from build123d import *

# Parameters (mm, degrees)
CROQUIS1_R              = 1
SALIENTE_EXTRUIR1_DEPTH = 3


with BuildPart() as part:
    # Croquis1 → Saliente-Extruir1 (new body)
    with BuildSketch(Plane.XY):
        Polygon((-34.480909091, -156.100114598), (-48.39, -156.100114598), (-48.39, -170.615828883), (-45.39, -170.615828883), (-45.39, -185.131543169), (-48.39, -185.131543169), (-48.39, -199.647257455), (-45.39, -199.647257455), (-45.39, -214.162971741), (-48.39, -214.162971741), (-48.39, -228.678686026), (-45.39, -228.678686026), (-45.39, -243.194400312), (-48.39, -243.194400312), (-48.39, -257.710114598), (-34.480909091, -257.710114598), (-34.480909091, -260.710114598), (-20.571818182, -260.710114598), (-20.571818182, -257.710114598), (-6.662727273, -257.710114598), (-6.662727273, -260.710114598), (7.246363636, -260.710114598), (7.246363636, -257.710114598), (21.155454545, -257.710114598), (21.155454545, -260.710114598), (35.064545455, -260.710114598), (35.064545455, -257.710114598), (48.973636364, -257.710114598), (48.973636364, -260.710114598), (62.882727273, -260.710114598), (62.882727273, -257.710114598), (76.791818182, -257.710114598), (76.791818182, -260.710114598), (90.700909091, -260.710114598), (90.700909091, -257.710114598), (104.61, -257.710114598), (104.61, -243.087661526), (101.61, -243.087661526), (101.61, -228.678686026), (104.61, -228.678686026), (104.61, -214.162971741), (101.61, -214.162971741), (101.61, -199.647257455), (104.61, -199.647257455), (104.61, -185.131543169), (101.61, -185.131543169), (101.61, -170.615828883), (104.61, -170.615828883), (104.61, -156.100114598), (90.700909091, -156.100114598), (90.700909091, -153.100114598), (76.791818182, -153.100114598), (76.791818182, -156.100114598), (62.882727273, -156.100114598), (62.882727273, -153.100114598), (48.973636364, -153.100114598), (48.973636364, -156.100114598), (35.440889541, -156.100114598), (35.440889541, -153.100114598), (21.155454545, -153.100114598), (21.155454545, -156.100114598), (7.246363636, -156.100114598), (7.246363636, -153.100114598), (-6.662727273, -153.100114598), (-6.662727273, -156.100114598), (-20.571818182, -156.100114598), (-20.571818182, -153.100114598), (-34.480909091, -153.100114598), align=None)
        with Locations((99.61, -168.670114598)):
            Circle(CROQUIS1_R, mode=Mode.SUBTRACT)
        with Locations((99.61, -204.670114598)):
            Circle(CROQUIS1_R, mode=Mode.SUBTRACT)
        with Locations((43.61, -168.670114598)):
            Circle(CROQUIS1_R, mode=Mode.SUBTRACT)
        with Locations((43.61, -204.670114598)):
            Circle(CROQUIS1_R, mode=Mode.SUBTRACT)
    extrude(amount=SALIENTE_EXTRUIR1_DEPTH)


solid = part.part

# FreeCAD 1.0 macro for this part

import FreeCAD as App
import Part
import Sketcher

V = App.Vector
Q = App.Units.Quantity

doc = App.newDocument("Part")
body = doc.addObject("PartDesign::Body", "Body")

sketch1 = body.newObject("Sketcher::SketchObject", "Sketch")
sketch1.AttachmentSupport = (doc.getObject("XY_Plane"), [""])
sketch1.MapMode = "FlatFace"
sketch1.addGeometry(Part.LineSegment(V(-34.5, -156.1, 0), V(-48.4, -156.1, 0)), False)
sketch1.addGeometry(Part.LineSegment(V(-48.4, -156.1, 0), V(-48.4, -170.6, 0)), False)
sketch1.addGeometry(Part.LineSegment(V(-48.4, -170.6, 0), V(-45.4, -170.6, 0)), False)
sketch1.addGeometry(Part.LineSegment(V(-45.4, -170.6, 0), V(-45.4, -185.1, 0)), False)
sketch1.addGeometry(Part.LineSegment(V(-45.4, -185.1, 0), V(-48.4, -185.1, 0)), False)
sketch1.addGeometry(Part.LineSegment(V(-48.4, -185.1, 0), V(-48.4, -199.6, 0)), False)
sketch1.addGeometry(Part.LineSegment(V(-48.4, -199.6, 0), V(-45.4, -199.6, 0)), False)
sketch1.addGeometry(Part.LineSegment(V(-45.4, -199.6, 0), V(-45.4, -214.2, 0)), False)
sketch1.addGeometry(Part.LineSegment(V(-45.4, -214.2, 0), V(-48.4, -214.2, 0)), False)
sketch1.addGeometry(Part.LineSegment(V(-48.4, -214.2, 0), V(-48.4, -228.7, 0)), False)
sketch1.addGeometry(Part.LineSegment(V(-48.4, -228.7, 0), V(-45.4, -228.7, 0)), False)
sketch1.addGeometry(Part.LineSegment(V(-45.4, -228.7, 0), V(-45.4, -243.2, 0)), False)
sketch1.addGeometry(Part.LineSegment(V(-45.4, -243.2, 0), V(-48.4, -243.2, 0)), False)
sketch1.addGeometry(Part.LineSegment(V(-48.4, -243.2, 0), V(-48.4, -257.7, 0)), False)
sketch1.addGeometry(Part.LineSegment(V(-48.4, -257.7, 0), V(-34.5, -257.7, 0)), False)
sketch1.addGeometry(Part.LineSegment(V(-34.5, -257.7, 0), V(-34.5, -260.7, 0)), False)
sketch1.addGeometry(Part.LineSegment(V(-34.5, -260.7, 0), V(-20.6, -260.7, 0)), False)
sketch1.addGeometry(Part.LineSegment(V(-20.6, -260.7, 0), V(-20.6, -257.7, 0)), False)
sketch1.addGeometry(Part.LineSegment(V(-20.6, -257.7, 0), V(-6.7, -257.7, 0)), False)
sketch1.addGeometry(Part.LineSegment(V(-6.7, -257.7, 0), V(-6.7, -260.7, 0)), False)
sketch1.addGeometry(Part.LineSegment(V(-6.7, -260.7, 0), V(7.2, -260.7, 0)), False)
sketch1.addGeometry(Part.LineSegment(V(7.2, -260.7, 0), V(7.2, -257.7, 0)), False)
sketch1.addGeometry(Part.LineSegment(V(7.2, -257.7, 0), V(21.2, -257.7, 0)), False)
sketch1.addGeometry(Part.LineSegment(V(21.2, -257.7, 0), V(21.2, -260.7, 0)), False)
sketch1.addGeometry(Part.LineSegment(V(21.2, -260.7, 0), V(35.1, -260.7, 0)), False)
sketch1.addGeometry(Part.LineSegment(V(35.1, -260.7, 0), V(35.1, -257.7, 0)), False)
sketch1.addGeometry(Part.LineSegment(V(35.1, -257.7, 0), V(49, -257.7, 0)), False)
sketch1.addGeometry(Part.LineSegment(V(49, -257.7, 0), V(49, -260.7, 0)), False)
sketch1.addGeometry(Part.LineSegment(V(49, -260.7, 0), V(62.9, -260.7, 0)), False)
sketch1.addGeometry(Part.LineSegment(V(62.9, -260.7, 0), V(62.9, -257.7, 0)), False)
sketch1.addGeometry(Part.LineSegment(V(62.9, -257.7, 0), V(76.8, -257.7, 0)), False)
sketch1.addGeometry(Part.LineSegment(V(76.8, -257.7, 0), V(76.8, -260.7, 0)), False)
sketch1.addGeometry(Part.LineSegment(V(76.8, -260.7, 0), V(90.7, -260.7, 0)), False)
sketch1.addGeometry(Part.LineSegment(V(90.7, -260.7, 0), V(90.7, -257.7, 0)), False)
sketch1.addGeometry(Part.LineSegment(V(90.7, -257.7, 0), V(104.6, -257.7, 0)), False)
sketch1.addGeometry(Part.LineSegment(V(104.6, -257.7, 0), V(104.6, -243.1, 0)), False)
sketch1.addGeometry(Part.LineSegment(V(104.6, -243.1, 0), V(101.6, -243.1, 0)), False)
sketch1.addGeometry(Part.LineSegment(V(101.6, -243.1, 0), V(101.6, -228.7, 0)), False)
sketch1.addGeometry(Part.LineSegment(V(101.6, -228.7, 0), V(104.6, -228.7, 0)), False)
sketch1.addGeometry(Part.LineSegment(V(104.6, -228.7, 0), V(104.6, -214.2, 0)), False)
sketch1.addGeometry(Part.LineSegment(V(104.6, -214.2, 0), V(101.6, -214.2, 0)), False)
sketch1.addGeometry(Part.LineSegment(V(101.6, -214.2, 0), V(101.6, -199.6, 0)), False)
sketch1.addGeometry(Part.LineSegment(V(101.6, -199.6, 0), V(104.6, -199.6, 0)), False)
sketch1.addGeometry(Part.LineSegment(V(104.6, -199.6, 0), V(104.6, -185.1, 0)), False)
sketch1.addGeometry(Part.LineSegment(V(104.6, -185.1, 0), V(101.6, -185.1, 0)), False)
sketch1.addGeometry(Part.LineSegment(V(101.6, -185.1, 0), V(101.6, -170.6, 0)), False)
sketch1.addGeometry(Part.LineSegment(V(101.6, -170.6, 0), V(104.6, -170.6, 0)), False)
sketch1.addGeometry(Part.LineSegment(V(104.6, -170.6, 0), V(104.6, -156.1, 0)), False)
sketch1.addGeometry(Part.LineSegment(V(104.6, -156.1, 0), V(90.7, -156.1, 0)), False)
sketch1.addGeometry(Part.LineSegment(V(90.7, -156.1, 0), V(90.7, -153.1, 0)), False)
sketch1.addGeometry(Part.LineSegment(V(90.7, -153.1, 0), V(76.8, -153.1, 0)), False)
sketch1.addGeometry(Part.LineSegment(V(76.8, -153.1, 0), V(76.8, -156.1, 0)), False)
sketch1.addGeometry(Part.LineSegment(V(76.8, -156.1, 0), V(62.9, -156.1, 0)), False)
sketch1.addGeometry(Part.LineSegment(V(62.9, -156.1, 0), V(62.9, -153.1, 0)), False)
sketch1.addGeometry(Part.LineSegment(V(62.9, -153.1, 0), V(49, -153.1, 0)), False)
sketch1.addGeometry(Part.LineSegment(V(49, -153.1, 0), V(49, -156.1, 0)), False)
sketch1.addGeometry(Part.LineSegment(V(49, -156.1, 0), V(35.4, -156.1, 0)), False)
sketch1.addGeometry(Part.LineSegment(V(35.4, -156.1, 0), V(35.4, -153.1, 0)), False)
sketch1.addGeometry(Part.LineSegment(V(35.4, -153.1, 0), V(21.2, -153.1, 0)), False)
sketch1.addGeometry(Part.LineSegment(V(21.2, -153.1, 0), V(21.2, -156.1, 0)), False)
sketch1.addGeometry(Part.LineSegment(V(21.2, -156.1, 0), V(7.2, -156.1, 0)), False)
sketch1.addGeometry(Part.LineSegment(V(7.2, -156.1, 0), V(7.2, -153.1, 0)), False)
sketch1.addGeometry(Part.LineSegment(V(7.2, -153.1, 0), V(-6.7, -153.1, 0)), False)
sketch1.addGeometry(Part.LineSegment(V(-6.7, -153.1, 0), V(-6.7, -156.1, 0)), False)
sketch1.addGeometry(Part.LineSegment(V(-6.7, -156.1, 0), V(-20.6, -156.1, 0)), False)
sketch1.addGeometry(Part.LineSegment(V(-20.6, -156.1, 0), V(-20.6, -153.1, 0)), False)
sketch1.addGeometry(Part.LineSegment(V(-20.6, -153.1, 0), V(-34.5, -153.1, 0)), False)
sketch1.addGeometry(Part.LineSegment(V(-34.5, -153.1, 0), V(-34.5, -156.1, 0)), False)
sketch1.addGeometry(Part.Circle(V(43.6, -204.7, 0), V(0, 0, 1), 1), False)
sketch1.addGeometry(Part.Circle(V(99.6, -204.7, 0), V(0, 0, 1), 1), False)
sketch1.addGeometry(Part.Circle(V(43.6, -168.7, 0), V(0, 0, 1), 1), False)
sketch1.addGeometry(Part.Circle(V(99.6, -168.7, 0), V(0, 0, 1), 1), False)
sketch1.addConstraint(Sketcher.Constraint("Coincident", 0, 2, 1, 1))
sketch1.addConstraint(Sketcher.Constraint("Coincident", 1, 2, 2, 1))
sketch1.addConstraint(Sketcher.Constraint("Coincident", 2, 2, 3, 1))
sketch1.addConstraint(Sketcher.Constraint("Coincident", 3, 2, 4, 1))
sketch1.addConstraint(Sketcher.Constraint("Coincident", 4, 2, 5, 1))
sketch1.addConstraint(Sketcher.Constraint("Coincident", 5, 2, 6, 1))
sketch1.addConstraint(Sketcher.Constraint("Coincident", 6, 2, 7, 1))
sketch1.addConstraint(Sketcher.Constraint("Coincident", 7, 2, 8, 1))
sketch1.addConstraint(Sketcher.Constraint("Coincident", 8, 2, 9, 1))
sketch1.addConstraint(Sketcher.Constraint("Coincident", 9, 2, 10, 1))
sketch1.addConstraint(Sketcher.Constraint("Coincident", 10, 2, 11, 1))
sketch1.addConstraint(Sketcher.Constraint("Coincident", 11, 2, 12, 1))
sketch1.addConstraint(Sketcher.Constraint("Coincident", 12, 2, 13, 1))
sketch1.addConstraint(Sketcher.Constraint("Coincident", 13, 2, 14, 1))
sketch1.addConstraint(Sketcher.Constraint("Coincident", 14, 2, 15, 1))
sketch1.addConstraint(Sketcher.Constraint("Coincident", 15, 2, 16, 1))
sketch1.addConstraint(Sketcher.Constraint("Coincident", 16, 2, 17, 1))
sketch1.addConstraint(Sketcher.Constraint("Coincident", 17, 2, 18, 1))
sketch1.addConstraint(Sketcher.Constraint("Coincident", 18, 2, 19, 1))
sketch1.addConstraint(Sketcher.Constraint("Coincident", 19, 2, 20, 1))
sketch1.addConstraint(Sketcher.Constraint("Coincident", 20, 2, 21, 1))
sketch1.addConstraint(Sketcher.Constraint("Coincident", 21, 2, 22, 1))
sketch1.addConstraint(Sketcher.Constraint("Coincident", 22, 2, 23, 1))
sketch1.addConstraint(Sketcher.Constraint("Coincident", 23, 2, 24, 1))
sketch1.addConstraint(Sketcher.Constraint("Coincident", 24, 2, 25, 1))
sketch1.addConstraint(Sketcher.Constraint("Coincident", 25, 2, 26, 1))
sketch1.addConstraint(Sketcher.Constraint("Coincident", 26, 2, 27, 1))
sketch1.addConstraint(Sketcher.Constraint("Coincident", 27, 2, 28, 1))
sketch1.addConstraint(Sketcher.Constraint("Coincident", 28, 2, 29, 1))
sketch1.addConstraint(Sketcher.Constraint("Coincident", 29, 2, 30, 1))
sketch1.addConstraint(Sketcher.Constraint("Coincident", 30, 2, 31, 1))
sketch1.addConstraint(Sketcher.Constraint("Coincident", 31, 2, 32, 1))
sketch1.addConstraint(Sketcher.Constraint("Coincident", 32, 2, 33, 1))
sketch1.addConstraint(Sketcher.Constraint("Coincident", 33, 2, 34, 1))
sketch1.addConstraint(Sketcher.Constraint("Coincident", 34, 2, 35, 1))
sketch1.addConstraint(Sketcher.Constraint("Coincident", 35, 2, 36, 1))
sketch1.addConstraint(Sketcher.Constraint("Coincident", 36, 2, 37, 1))
sketch1.addConstraint(Sketcher.Constraint("Coincident", 37, 2, 38, 1))
sketch1.addConstraint(Sketcher.Constraint("Coincident", 38, 2, 39, 1))
sketch1.addConstraint(Sketcher.Constraint("Coincident", 39, 2, 40, 1))
sketch1.addConstraint(Sketcher.Constraint("Coincident", 40, 2, 41, 1))
sketch1.addConstraint(Sketcher.Constraint("Coincident", 41, 2, 42, 1))
sketch1.addConstraint(Sketcher.Constraint("Coincident", 42, 2, 43, 1))
sketch1.addConstraint(Sketcher.Constraint("Coincident", 43, 2, 44, 1))
sketch1.addConstraint(Sketcher.Constraint("Coincident", 44, 2, 45, 1))
sketch1.addConstraint(Sketcher.Constraint("Coincident", 45, 2, 46, 1))
sketch1.addConstraint(Sketcher.Constraint("Coincident", 46, 2, 47, 1))
sketch1.addConstraint(Sketcher.Constraint("Coincident", 47, 2, 48, 1))
sketch1.addConstraint(Sketcher.Constraint("Coincident", 48, 2, 49, 1))
sketch1.addConstraint(Sketcher.Constraint("Coincident", 49, 2, 50, 1))
sketch1.addConstraint(Sketcher.Constraint("Coincident", 50, 2, 51, 1))
sketch1.addConstraint(Sketcher.Constraint("Coincident", 51, 2, 52, 1))
sketch1.addConstraint(Sketcher.Constraint("Coincident", 52, 2, 53, 1))
sketch1.addConstraint(Sketcher.Constraint("Coincident", 53, 2, 54, 1))
sketch1.addConstraint(Sketcher.Constraint("Coincident", 54, 2, 55, 1))
sketch1.addConstraint(Sketcher.Constraint("Coincident", 55, 2, 56, 1))
sketch1.addConstraint(Sketcher.Constraint("Coincident", 56, 2, 57, 1))
sketch1.addConstraint(Sketcher.Constraint("Coincident", 57, 2, 58, 1))
sketch1.addConstraint(Sketcher.Constraint("Coincident", 58, 2, 59, 1))
sketch1.addConstraint(Sketcher.Constraint("Coincident", 59, 2, 60, 1))
sketch1.addConstraint(Sketcher.Constraint("Coincident", 60, 2, 61, 1))
sketch1.addConstraint(Sketcher.Constraint("Coincident", 61, 2, 62, 1))
sketch1.addConstraint(Sketcher.Constraint("Coincident", 62, 2, 63, 1))
sketch1.addConstraint(Sketcher.Constraint("Coincident", 63, 2, 64, 1))
sketch1.addConstraint(Sketcher.Constraint("Coincident", 64, 2, 65, 1))
sketch1.addConstraint(Sketcher.Constraint("Coincident", 65, 2, 66, 1))
sketch1.addConstraint(Sketcher.Constraint("Coincident", 66, 2, 67, 1))
sketch1.addConstraint(Sketcher.Constraint("Coincident", 67, 2, 0, 1))
sketch1.addConstraint(Sketcher.Constraint("Horizontal", 0))
sketch1.addConstraint(Sketcher.Constraint("Vertical", 1))
sketch1.addConstraint(Sketcher.Constraint("Horizontal", 2))
sketch1.addConstraint(Sketcher.Constraint("Vertical", 3))
sketch1.addConstraint(Sketcher.Constraint("Horizontal", 4))
sketch1.addConstraint(Sketcher.Constraint("Vertical", 5))
sketch1.addConstraint(Sketcher.Constraint("Horizontal", 6))
sketch1.addConstraint(Sketcher.Constraint("Vertical", 7))
sketch1.addConstraint(Sketcher.Constraint("Horizontal", 8))
sketch1.addConstraint(Sketcher.Constraint("Vertical", 9))
sketch1.addConstraint(Sketcher.Constraint("Horizontal", 10))
sketch1.addConstraint(Sketcher.Constraint("Vertical", 11))
sketch1.addConstraint(Sketcher.Constraint("Horizontal", 12))
sketch1.addConstraint(Sketcher.Constraint("Vertical", 13))
sketch1.addConstraint(Sketcher.Constraint("Horizontal", 14))
sketch1.addConstraint(Sketcher.Constraint("Vertical", 15))
sketch1.addConstraint(Sketcher.Constraint("Horizontal", 16))
sketch1.addConstraint(Sketcher.Constraint("Vertical", 17))
sketch1.addConstraint(Sketcher.Constraint("Horizontal", 18))
sketch1.addConstraint(Sketcher.Constraint("Vertical", 19))
sketch1.addConstraint(Sketcher.Constraint("Horizontal", 20))
sketch1.addConstraint(Sketcher.Constraint("Vertical", 21))
sketch1.addConstraint(Sketcher.Constraint("Horizontal", 22))
sketch1.addConstraint(Sketcher.Constraint("Vertical", 23))
sketch1.addConstraint(Sketcher.Constraint("Horizontal", 24))
sketch1.addConstraint(Sketcher.Constraint("Vertical", 25))
sketch1.addConstraint(Sketcher.Constraint("Horizontal", 26))
sketch1.addConstraint(Sketcher.Constraint("Vertical", 27))
sketch1.addConstraint(Sketcher.Constraint("Horizontal", 28))
sketch1.addConstraint(Sketcher.Constraint("Vertical", 29))
sketch1.addConstraint(Sketcher.Constraint("Horizontal", 30))
sketch1.addConstraint(Sketcher.Constraint("Vertical", 31))
sketch1.addConstraint(Sketcher.Constraint("Horizontal", 32))
sketch1.addConstraint(Sketcher.Constraint("Vertical", 33))
sketch1.addConstraint(Sketcher.Constraint("Horizontal", 34))
sketch1.addConstraint(Sketcher.Constraint("Vertical", 35))
sketch1.addConstraint(Sketcher.Constraint("Horizontal", 36))
sketch1.addConstraint(Sketcher.Constraint("Vertical", 37))
sketch1.addConstraint(Sketcher.Constraint("Horizontal", 38))
sketch1.addConstraint(Sketcher.Constraint("Vertical", 39))
sketch1.addConstraint(Sketcher.Constraint("Horizontal", 40))
sketch1.addConstraint(Sketcher.Constraint("Vertical", 41))
sketch1.addConstraint(Sketcher.Constraint("Horizontal", 42))
sketch1.addConstraint(Sketcher.Constraint("Vertical", 43))
sketch1.addConstraint(Sketcher.Constraint("Horizontal", 44))
sketch1.addConstraint(Sketcher.Constraint("Vertical", 45))
sketch1.addConstraint(Sketcher.Constraint("Horizontal", 46))
sketch1.addConstraint(Sketcher.Constraint("Vertical", 47))
sketch1.addConstraint(Sketcher.Constraint("Horizontal", 48))
sketch1.addConstraint(Sketcher.Constraint("Vertical", 49))
sketch1.addConstraint(Sketcher.Constraint("Horizontal", 50))
sketch1.addConstraint(Sketcher.Constraint("Vertical", 51))
sketch1.addConstraint(Sketcher.Constraint("Horizontal", 52))
sketch1.addConstraint(Sketcher.Constraint("Vertical", 53))
sketch1.addConstraint(Sketcher.Constraint("Horizontal", 54))
sketch1.addConstraint(Sketcher.Constraint("Vertical", 55))
sketch1.addConstraint(Sketcher.Constraint("Horizontal", 56))
sketch1.addConstraint(Sketcher.Constraint("Vertical", 57))
sketch1.addConstraint(Sketcher.Constraint("Horizontal", 58))
sketch1.addConstraint(Sketcher.Constraint("Vertical", 59))
sketch1.addConstraint(Sketcher.Constraint("Horizontal", 60))
sketch1.addConstraint(Sketcher.Constraint("Vertical", 61))
sketch1.addConstraint(Sketcher.Constraint("Horizontal", 62))
sketch1.addConstraint(Sketcher.Constraint("Vertical", 63))
sketch1.addConstraint(Sketcher.Constraint("Horizontal", 64))
sketch1.addConstraint(Sketcher.Constraint("Vertical", 65))
sketch1.addConstraint(Sketcher.Constraint("Horizontal", 66))
sketch1.addConstraint(Sketcher.Constraint("Vertical", 67))
sketch1.addConstraint(Sketcher.Constraint("Equal", 68, 69))
sketch1.addConstraint(Sketcher.Constraint("Equal", 69, 70))
sketch1.addConstraint(Sketcher.Constraint("Equal", 70, 71))
sketch1.addConstraint(Sketcher.Constraint("Horizontal", 68, 3, 69, 3))
sketch1.addConstraint(Sketcher.Constraint("Horizontal", 70, 3, 71, 3))
sketch1.addConstraint(Sketcher.Constraint("Horizontal", 14, 2, 17, 2))
sketch1.addConstraint(Sketcher.Constraint("Horizontal", 16, 2, 19, 2))
sketch1.addConstraint(Sketcher.Constraint("Horizontal", 18, 2, 21, 2))
sketch1.addConstraint(Sketcher.Constraint("Horizontal", 20, 2, 23, 2))
sketch1.addConstraint(Sketcher.Constraint("Horizontal", 22, 2, 25, 2))
sketch1.addConstraint(Sketcher.Constraint("Horizontal", 24, 2, 27, 2))
sketch1.addConstraint(Sketcher.Constraint("Horizontal", 26, 2, 29, 2))
sketch1.addConstraint(Sketcher.Constraint("Horizontal", 28, 2, 31, 2))
sketch1.addConstraint(Sketcher.Constraint("Horizontal", 30, 2, 33, 2))
sketch1.addConstraint(Sketcher.Constraint("Horizontal", 10, 2, 37, 2))
sketch1.addConstraint(Sketcher.Constraint("Horizontal", 8, 2, 39, 2))
sketch1.addConstraint(Sketcher.Constraint("Horizontal", 6, 2, 41, 2))
sketch1.addConstraint(Sketcher.Constraint("Horizontal", 4, 2, 43, 2))
sketch1.addConstraint(Sketcher.Constraint("Horizontal", 2, 2, 45, 2))
sketch1.addConstraint(Sketcher.Constraint("Horizontal", 0, 2, 47, 2))
sketch1.addConstraint(Sketcher.Constraint("Horizontal", 48, 2, 51, 2))
sketch1.addConstraint(Sketcher.Constraint("Horizontal", 50, 2, 53, 2))
sketch1.addConstraint(Sketcher.Constraint("Horizontal", 52, 2, 55, 2))
sketch1.addConstraint(Sketcher.Constraint("Horizontal", 54, 2, 57, 2))
sketch1.addConstraint(Sketcher.Constraint("Horizontal", 56, 2, 59, 2))
sketch1.addConstraint(Sketcher.Constraint("Horizontal", 58, 2, 61, 2))
sketch1.addConstraint(Sketcher.Constraint("Horizontal", 60, 2, 63, 2))
sketch1.addConstraint(Sketcher.Constraint("Horizontal", 62, 2, 65, 2))
sketch1.addConstraint(Sketcher.Constraint("Vertical", 68, 3, 70, 3))
sketch1.addConstraint(Sketcher.Constraint("Vertical", 69, 3, 71, 3))
sketch1.addConstraint(Sketcher.Constraint("Vertical", 1, 2, 4, 2))
sketch1.addConstraint(Sketcher.Constraint("Vertical", 3, 2, 6, 2))
sketch1.addConstraint(Sketcher.Constraint("Vertical", 5, 2, 8, 2))
sketch1.addConstraint(Sketcher.Constraint("Vertical", 7, 2, 10, 2))
sketch1.addConstraint(Sketcher.Constraint("Vertical", 9, 2, 12, 2))
sketch1.addConstraint(Sketcher.Constraint("Vertical", 35, 2, 38, 2))
sketch1.addConstraint(Sketcher.Constraint("Vertical", 37, 2, 40, 2))
sketch1.addConstraint(Sketcher.Constraint("Vertical", 39, 2, 42, 2))
sketch1.addConstraint(Sketcher.Constraint("Vertical", 41, 2, 44, 2))
sketch1.addConstraint(Sketcher.Constraint("Vertical", 43, 2, 46, 2))
sketch1.addConstraint(Sketcher.Constraint("Vertical", 33, 2, 48, 2))
sketch1.addConstraint(Sketcher.Constraint("Vertical", 31, 2, 50, 2))
sketch1.addConstraint(Sketcher.Constraint("Vertical", 29, 2, 52, 2))
sketch1.addConstraint(Sketcher.Constraint("Vertical", 27, 2, 54, 2))
sketch1.addConstraint(Sketcher.Constraint("Vertical", 23, 2, 58, 2))
sketch1.addConstraint(Sketcher.Constraint("Vertical", 21, 2, 60, 2))
sketch1.addConstraint(Sketcher.Constraint("Vertical", 19, 2, 62, 2))
sketch1.addConstraint(Sketcher.Constraint("Vertical", 17, 2, 64, 2))
sketch1.addConstraint(Sketcher.Constraint("Vertical", 15, 2, 66, 2))
sketch1.addConstraint(Sketcher.Constraint("Equal", 14, 16))
sketch1.addConstraint(Sketcher.Constraint("Equal", 16, 18))
sketch1.addConstraint(Sketcher.Constraint("Equal", 18, 20))
sketch1.addConstraint(Sketcher.Constraint("Equal", 20, 22))
sketch1.addConstraint(Sketcher.Constraint("Equal", 22, 24))
sketch1.addConstraint(Sketcher.Constraint("Equal", 24, 26))
sketch1.addConstraint(Sketcher.Constraint("Equal", 26, 28))
sketch1.addConstraint(Sketcher.Constraint("Equal", 28, 30))
sketch1.addConstraint(Sketcher.Constraint("Equal", 30, 32))
sketch1.addConstraint(Sketcher.Constraint("Equal", 32, 34))
sketch1.addConstraint(Sketcher.Constraint("Equal", 12, 36))
sketch1.addConstraint(Sketcher.Constraint("Equal", 1, 3))
sketch1.addConstraint(Sketcher.Constraint("Equal", 3, 5))
sketch1.addConstraint(Sketcher.Constraint("Equal", 5, 7))
sketch1.addConstraint(Sketcher.Constraint("Equal", 7, 9))
sketch1.addConstraint(Sketcher.Constraint("Equal", 9, 11))
sketch1.addConstraint(Sketcher.Constraint("Equal", 11, 13))
sketch1.addConstraint(Sketcher.Constraint("Equal", 46, 15))
sketch1.addConstraint(Sketcher.Constraint("Equal", 33, 49))
sketch1.addConstraint(Sketcher.Constraint("Diameter", 68, Q("2 mm")))
sketch1.addConstraint(Sketcher.Constraint("DistanceX", 2, 1, 2, 2, Q("3 mm")))
sketch1.addConstraint(Sketcher.Constraint("DistanceX", -1, 1, 68, 3, Q("43.61 mm")))
sketch1.addConstraint(Sketcher.Constraint("DistanceX", -1, 1, 69, 3, Q("99.61 mm")))
sketch1.addConstraint(Sketcher.Constraint("DistanceX", 0, 2, -1, 1, Q("48.39 mm")))
sketch1.addConstraint(Sketcher.Constraint("DistanceX", -1, 1, 34, 2, Q("104.61 mm")))
sketch1.addConstraint(Sketcher.Constraint("DistanceY", 11, 2, -1, 1, Q("243.1944 mm")))
sketch1.addConstraint(Sketcher.Constraint("DistanceX", 56, 2, 56, 1, Q("13.532747 mm")))
sketch1.addConstraint(Sketcher.Constraint("DistanceY", 1, 2, 1, 1, Q("14.515714 mm")))
sketch1.addConstraint(Sketcher.Constraint("DistanceY", 35, 1, 35, 2, Q("14.622453 mm")))
sketch1.addConstraint(Sketcher.Constraint("DistanceY", 68, 3, -1, 1, Q("204.670115 mm")))
sketch1.addConstraint(Sketcher.Constraint("DistanceY", 70, 3, -1, 1, Q("168.670115 mm")))
pad1 = body.newObject("PartDesign::Pad", "Pad")
pad1.Profile = sketch1
pad1.Length = 3

doc.recompute()
